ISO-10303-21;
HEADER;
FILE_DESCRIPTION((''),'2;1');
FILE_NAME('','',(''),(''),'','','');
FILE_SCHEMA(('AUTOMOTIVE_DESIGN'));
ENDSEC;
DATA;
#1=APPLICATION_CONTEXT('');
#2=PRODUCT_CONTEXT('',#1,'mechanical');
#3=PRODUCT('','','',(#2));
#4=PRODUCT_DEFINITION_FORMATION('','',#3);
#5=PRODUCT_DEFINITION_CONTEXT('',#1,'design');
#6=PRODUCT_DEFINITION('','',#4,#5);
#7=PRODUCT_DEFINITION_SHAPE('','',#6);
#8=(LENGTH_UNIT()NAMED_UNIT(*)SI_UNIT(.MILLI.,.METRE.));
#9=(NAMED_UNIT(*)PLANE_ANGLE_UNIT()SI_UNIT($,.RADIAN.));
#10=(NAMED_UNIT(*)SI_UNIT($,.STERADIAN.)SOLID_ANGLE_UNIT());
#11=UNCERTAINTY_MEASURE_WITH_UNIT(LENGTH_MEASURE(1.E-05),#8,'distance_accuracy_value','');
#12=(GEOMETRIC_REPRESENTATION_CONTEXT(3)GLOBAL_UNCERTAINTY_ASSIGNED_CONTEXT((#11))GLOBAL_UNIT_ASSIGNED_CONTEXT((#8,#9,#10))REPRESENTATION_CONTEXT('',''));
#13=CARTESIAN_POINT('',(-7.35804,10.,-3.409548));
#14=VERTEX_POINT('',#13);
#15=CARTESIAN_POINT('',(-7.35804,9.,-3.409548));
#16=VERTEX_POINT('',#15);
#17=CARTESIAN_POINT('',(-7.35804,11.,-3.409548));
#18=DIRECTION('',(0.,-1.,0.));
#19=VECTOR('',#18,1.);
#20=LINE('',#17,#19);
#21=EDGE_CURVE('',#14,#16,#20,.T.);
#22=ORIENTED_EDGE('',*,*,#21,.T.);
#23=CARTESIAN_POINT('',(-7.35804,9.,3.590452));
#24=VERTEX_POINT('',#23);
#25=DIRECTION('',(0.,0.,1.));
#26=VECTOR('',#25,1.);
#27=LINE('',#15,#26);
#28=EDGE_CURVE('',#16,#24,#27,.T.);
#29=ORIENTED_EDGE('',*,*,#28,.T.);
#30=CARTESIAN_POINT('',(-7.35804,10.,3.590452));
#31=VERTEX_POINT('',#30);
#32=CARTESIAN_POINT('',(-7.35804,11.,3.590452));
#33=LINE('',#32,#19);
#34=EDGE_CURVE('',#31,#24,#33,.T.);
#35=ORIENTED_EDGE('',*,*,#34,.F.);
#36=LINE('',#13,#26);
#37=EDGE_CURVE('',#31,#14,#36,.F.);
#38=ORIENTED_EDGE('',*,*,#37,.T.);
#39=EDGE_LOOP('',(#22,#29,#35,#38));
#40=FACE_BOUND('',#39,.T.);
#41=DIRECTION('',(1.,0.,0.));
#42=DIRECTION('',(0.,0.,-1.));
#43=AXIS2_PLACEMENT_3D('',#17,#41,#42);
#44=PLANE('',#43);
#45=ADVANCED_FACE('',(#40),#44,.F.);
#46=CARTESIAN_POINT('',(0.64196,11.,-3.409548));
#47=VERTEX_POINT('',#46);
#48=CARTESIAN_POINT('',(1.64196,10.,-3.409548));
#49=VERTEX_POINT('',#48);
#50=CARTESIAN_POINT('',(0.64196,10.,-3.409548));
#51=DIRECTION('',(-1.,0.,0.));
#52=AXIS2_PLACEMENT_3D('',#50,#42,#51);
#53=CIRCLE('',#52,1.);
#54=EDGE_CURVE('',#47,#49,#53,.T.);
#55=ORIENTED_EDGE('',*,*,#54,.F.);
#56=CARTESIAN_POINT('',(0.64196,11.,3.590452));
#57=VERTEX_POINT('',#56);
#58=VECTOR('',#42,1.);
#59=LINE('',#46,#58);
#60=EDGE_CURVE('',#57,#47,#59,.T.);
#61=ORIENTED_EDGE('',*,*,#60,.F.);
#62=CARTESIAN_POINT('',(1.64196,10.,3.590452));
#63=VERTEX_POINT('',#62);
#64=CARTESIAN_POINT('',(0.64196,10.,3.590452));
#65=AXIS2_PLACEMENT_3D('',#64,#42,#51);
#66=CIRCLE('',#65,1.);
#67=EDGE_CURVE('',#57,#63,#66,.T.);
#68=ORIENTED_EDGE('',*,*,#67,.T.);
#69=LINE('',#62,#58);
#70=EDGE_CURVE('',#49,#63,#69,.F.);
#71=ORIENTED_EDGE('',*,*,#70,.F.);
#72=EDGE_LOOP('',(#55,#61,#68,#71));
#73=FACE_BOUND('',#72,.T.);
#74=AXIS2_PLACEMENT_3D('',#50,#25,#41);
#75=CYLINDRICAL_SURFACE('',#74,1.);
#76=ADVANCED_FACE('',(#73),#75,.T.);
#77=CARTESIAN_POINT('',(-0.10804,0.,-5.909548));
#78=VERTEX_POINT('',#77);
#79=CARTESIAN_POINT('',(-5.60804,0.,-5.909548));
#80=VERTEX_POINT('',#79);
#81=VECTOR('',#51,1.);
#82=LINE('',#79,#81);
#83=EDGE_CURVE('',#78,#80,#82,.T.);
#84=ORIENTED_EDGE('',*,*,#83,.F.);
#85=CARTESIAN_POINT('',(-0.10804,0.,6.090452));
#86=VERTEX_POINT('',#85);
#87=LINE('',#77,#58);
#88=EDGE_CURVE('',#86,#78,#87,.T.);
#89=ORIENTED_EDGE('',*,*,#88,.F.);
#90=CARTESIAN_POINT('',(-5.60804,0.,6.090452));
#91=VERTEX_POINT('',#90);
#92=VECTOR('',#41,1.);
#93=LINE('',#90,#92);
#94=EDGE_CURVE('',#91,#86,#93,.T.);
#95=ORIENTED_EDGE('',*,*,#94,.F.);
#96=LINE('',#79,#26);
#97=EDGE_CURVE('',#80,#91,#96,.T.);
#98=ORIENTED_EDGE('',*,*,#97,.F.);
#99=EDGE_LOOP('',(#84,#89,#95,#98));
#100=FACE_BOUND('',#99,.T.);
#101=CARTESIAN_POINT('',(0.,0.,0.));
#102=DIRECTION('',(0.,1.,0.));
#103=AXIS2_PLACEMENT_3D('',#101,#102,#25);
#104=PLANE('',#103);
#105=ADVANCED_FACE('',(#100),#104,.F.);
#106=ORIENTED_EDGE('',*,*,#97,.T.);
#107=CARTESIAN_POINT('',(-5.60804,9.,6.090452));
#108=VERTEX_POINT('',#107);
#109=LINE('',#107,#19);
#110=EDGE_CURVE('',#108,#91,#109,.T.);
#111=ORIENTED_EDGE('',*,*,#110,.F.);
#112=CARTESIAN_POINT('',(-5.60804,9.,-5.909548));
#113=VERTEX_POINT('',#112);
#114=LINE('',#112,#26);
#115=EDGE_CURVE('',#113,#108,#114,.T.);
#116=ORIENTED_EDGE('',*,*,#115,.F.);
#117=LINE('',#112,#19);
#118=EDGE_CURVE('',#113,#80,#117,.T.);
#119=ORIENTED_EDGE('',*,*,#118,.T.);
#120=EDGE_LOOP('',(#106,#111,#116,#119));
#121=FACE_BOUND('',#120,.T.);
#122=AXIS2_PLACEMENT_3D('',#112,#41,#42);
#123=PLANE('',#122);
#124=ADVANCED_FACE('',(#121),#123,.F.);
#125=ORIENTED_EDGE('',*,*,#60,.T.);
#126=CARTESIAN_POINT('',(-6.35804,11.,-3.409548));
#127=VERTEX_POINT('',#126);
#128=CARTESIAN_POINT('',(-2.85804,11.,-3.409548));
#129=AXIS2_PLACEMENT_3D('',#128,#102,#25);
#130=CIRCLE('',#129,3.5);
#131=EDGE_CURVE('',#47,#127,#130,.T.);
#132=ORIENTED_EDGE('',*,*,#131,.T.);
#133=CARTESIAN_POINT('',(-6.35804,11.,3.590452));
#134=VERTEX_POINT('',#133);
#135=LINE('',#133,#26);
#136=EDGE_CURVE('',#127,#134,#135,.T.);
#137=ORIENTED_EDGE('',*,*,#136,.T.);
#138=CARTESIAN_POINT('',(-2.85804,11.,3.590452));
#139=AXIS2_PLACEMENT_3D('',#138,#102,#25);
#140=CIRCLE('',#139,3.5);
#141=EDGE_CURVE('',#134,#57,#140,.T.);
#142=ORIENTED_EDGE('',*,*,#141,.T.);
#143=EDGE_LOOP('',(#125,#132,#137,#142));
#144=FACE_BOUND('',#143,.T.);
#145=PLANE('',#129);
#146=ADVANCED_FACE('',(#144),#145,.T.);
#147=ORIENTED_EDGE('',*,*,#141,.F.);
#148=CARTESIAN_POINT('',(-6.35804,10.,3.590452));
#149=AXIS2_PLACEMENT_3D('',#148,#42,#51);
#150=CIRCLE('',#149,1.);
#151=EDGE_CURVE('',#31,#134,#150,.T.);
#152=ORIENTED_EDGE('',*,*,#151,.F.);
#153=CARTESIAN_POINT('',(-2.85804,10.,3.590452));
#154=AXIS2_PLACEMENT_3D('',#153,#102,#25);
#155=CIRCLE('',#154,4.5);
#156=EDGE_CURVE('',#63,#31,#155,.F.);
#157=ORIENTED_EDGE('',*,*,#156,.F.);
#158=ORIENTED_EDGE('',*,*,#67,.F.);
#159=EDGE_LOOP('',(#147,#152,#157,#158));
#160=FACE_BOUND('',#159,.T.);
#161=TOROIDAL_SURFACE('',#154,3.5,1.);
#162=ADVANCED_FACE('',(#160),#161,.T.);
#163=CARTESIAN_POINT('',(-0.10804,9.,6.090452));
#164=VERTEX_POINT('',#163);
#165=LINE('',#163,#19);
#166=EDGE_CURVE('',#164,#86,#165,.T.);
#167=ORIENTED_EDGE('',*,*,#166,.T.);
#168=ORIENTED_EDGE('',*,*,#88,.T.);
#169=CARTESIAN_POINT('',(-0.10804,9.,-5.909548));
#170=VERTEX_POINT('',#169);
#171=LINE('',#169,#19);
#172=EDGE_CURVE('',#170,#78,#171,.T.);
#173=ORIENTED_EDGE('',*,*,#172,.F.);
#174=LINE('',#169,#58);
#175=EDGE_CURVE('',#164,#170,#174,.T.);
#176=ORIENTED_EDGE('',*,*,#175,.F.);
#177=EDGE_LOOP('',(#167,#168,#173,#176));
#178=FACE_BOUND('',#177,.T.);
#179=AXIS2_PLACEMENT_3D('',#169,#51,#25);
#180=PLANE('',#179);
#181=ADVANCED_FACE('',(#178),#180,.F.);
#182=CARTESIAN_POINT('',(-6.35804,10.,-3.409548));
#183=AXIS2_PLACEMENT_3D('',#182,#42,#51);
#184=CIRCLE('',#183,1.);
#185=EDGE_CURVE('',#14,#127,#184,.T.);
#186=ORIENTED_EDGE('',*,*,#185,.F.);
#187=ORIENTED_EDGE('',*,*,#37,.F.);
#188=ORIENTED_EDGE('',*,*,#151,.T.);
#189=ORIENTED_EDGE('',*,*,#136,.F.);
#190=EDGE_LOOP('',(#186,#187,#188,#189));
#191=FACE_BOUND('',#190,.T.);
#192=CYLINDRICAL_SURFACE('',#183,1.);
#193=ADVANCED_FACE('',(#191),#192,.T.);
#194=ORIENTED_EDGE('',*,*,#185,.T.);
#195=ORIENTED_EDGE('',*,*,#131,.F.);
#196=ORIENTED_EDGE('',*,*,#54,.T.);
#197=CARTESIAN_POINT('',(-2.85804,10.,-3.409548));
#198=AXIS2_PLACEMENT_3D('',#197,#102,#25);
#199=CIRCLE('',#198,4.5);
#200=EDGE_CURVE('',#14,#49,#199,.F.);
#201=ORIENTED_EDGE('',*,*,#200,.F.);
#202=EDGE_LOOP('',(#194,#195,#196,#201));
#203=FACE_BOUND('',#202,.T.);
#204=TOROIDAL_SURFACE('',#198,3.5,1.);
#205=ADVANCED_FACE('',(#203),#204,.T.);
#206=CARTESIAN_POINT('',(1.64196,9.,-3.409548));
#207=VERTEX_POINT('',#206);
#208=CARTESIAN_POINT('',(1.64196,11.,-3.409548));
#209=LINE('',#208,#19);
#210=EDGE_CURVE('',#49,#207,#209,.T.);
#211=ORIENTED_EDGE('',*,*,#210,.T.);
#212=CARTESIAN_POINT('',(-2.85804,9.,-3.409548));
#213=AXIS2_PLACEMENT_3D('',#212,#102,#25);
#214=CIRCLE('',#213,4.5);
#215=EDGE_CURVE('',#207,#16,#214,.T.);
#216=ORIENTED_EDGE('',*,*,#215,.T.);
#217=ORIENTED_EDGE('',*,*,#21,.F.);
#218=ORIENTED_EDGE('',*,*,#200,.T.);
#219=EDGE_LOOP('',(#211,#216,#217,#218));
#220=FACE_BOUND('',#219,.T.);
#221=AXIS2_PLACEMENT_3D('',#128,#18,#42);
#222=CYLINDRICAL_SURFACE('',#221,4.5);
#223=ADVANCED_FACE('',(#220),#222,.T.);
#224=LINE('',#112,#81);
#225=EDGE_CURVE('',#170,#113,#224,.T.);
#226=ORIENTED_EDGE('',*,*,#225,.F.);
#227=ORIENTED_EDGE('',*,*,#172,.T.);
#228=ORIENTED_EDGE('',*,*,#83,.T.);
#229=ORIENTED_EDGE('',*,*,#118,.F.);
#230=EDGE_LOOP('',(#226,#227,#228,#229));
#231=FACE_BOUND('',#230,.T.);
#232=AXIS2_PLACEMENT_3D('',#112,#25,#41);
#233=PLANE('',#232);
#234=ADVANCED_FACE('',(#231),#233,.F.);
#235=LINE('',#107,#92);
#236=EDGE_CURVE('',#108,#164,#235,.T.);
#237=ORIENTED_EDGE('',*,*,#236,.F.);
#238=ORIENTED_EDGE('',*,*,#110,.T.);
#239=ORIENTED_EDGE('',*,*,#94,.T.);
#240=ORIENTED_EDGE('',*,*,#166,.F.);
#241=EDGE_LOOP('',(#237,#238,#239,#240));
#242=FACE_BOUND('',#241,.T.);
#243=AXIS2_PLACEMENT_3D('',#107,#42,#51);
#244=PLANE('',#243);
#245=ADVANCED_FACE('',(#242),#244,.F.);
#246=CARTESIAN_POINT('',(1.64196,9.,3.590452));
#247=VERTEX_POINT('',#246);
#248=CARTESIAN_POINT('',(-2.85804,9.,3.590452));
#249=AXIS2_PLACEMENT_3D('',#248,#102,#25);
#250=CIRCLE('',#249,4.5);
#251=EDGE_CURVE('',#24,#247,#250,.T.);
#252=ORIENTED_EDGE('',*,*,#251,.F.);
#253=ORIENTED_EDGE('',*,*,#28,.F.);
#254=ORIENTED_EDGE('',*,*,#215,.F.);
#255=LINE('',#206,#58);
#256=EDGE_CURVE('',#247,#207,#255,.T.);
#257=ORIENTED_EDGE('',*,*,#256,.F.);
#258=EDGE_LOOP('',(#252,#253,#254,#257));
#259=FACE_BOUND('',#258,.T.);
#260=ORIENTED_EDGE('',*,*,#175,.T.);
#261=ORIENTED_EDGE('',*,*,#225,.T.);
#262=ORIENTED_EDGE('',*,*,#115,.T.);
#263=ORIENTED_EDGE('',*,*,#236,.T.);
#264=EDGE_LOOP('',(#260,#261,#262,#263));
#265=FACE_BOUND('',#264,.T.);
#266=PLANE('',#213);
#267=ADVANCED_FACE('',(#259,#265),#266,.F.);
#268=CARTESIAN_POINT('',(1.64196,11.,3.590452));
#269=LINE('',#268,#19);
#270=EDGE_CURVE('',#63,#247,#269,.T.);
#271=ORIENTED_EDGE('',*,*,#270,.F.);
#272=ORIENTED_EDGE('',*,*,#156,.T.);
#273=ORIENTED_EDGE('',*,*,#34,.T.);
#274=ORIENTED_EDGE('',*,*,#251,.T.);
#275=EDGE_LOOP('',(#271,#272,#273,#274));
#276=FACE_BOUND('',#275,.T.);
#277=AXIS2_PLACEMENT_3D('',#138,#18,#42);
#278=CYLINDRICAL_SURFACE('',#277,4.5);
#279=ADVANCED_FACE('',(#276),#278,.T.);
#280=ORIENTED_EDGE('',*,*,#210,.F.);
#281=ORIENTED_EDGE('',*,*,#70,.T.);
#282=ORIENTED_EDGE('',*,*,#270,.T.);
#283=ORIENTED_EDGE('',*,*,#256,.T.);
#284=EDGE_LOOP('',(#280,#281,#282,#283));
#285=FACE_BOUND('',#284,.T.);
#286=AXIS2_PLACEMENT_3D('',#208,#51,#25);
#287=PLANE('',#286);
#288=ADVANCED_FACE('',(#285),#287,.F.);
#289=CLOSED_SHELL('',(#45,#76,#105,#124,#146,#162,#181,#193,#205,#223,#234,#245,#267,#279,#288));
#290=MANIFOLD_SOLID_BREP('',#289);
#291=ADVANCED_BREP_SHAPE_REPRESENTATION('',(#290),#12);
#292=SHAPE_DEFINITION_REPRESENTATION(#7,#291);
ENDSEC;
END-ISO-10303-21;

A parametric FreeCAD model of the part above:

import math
import FreeCAD as App
import Part
import Sketcher

V = App.Vector
Q = App.Units.Quantity


def edges_at(feature, points):
    """Names of the edges that pass closest to the given points."""
    edges = feature.Shape.Edges
    near = lambda p: min(range(len(edges)), key=lambda i: edges[i].distToShape(Part.Vertex(*p))[0])
    return sorted({f"Edge{near(p) + 1}" for p in points})

doc = App.newDocument("Part")
params = doc.addObject("Spreadsheet::Sheet", "Params")
for row, (alias, value) in enumerate([
    ("sketch1_height", "12 mm"),
    ("sketch1_width", "5.5 mm"),
    ("pad1_length", "9 mm"),
    ("sketch2_radius", "4.5 mm"),
    ("sketch2_height", "7 mm"),
    ("pad2_length", "2 mm"),
    ("fillet_radius", "1 mm"),
], start=1):
    params.set(f"A{row}", alias)
    params.set(f"B{row}", "=" + value)
    params.setAlias(f"B{row}", alias)

body = doc.addObject("PartDesign::Body", "Body")

# Sketch on XZ plane
sketch1 = body.newObject("Sketcher::SketchObject", "Sketch")
sketch1.AttachmentSupport = (doc.getObject("XZ_Plane"), [""])
sketch1.MapMode = "FlatFace"
sketch1.addGeometry([
    Part.LineSegment(V(-5.60804, -5.909548, 0), V(-5.60804, 6.090452, 0)),
    Part.LineSegment(V(-5.60804, 6.090452, 0), V(-0.10804, 6.090452, 0)),
    Part.LineSegment(V(-0.10804, 6.090452, 0), V(-0.10804, -5.909548, 0)),
    Part.LineSegment(V(-0.10804, -5.909548, 0), V(-5.60804, -5.909548, 0)),
], False)
sketch1.addConstraint([
    Sketcher.Constraint("Coincident", 0, 2, 1, 1),
    Sketcher.Constraint("Coincident", 1, 2, 2, 1),
    Sketcher.Constraint("Coincident", 2, 2, 3, 1),
    Sketcher.Constraint("Coincident", 3, 2, 0, 1),
    Sketcher.Constraint("Vertical", 0),
    Sketcher.Constraint("Horizontal", 1),
    Sketcher.Constraint("Vertical", 2),
    Sketcher.Constraint("Horizontal", 3),
    Sketcher.Constraint("DistanceY", 0, 1, 0, 2, Q("12 mm")),
    Sketcher.Constraint("DistanceX", 1, 1, 1, 2, Q("5.5 mm")),
    Sketcher.Constraint("DistanceX", 0, 2, -1, 1, Q("5.60804 mm")),
    Sketcher.Constraint("DistanceY", -1, 1, 0, 2, Q("6.090452 mm")),
])
sketch1.setExpression("Constraints[8]", "Params.sketch1_height")
sketch1.setExpression("Constraints[9]", "Params.sketch1_width")
pad1 = body.newObject("PartDesign::Pad", "Pad")
pad1.Profile = sketch1
pad1.setExpression("Length", "Params.pad1_length")
pad1.Reversed = True

# Sketch on XZ plane
sketch2 = body.newObject("Sketcher::SketchObject", "Sketch001")
sketch2.AttachmentSupport = (doc.getObject("XZ_Plane"), [""])
sketch2.MapMode = "FlatFace"
sketch2.AttachmentOffset = App.Placement(V(0, 0, -9), App.Rotation())
sketch2.addGeometry([
    Part.LineSegment(V(1.64196, 3.590452, 0), V(1.64196, -3.409548, 0)),
    Part.ArcOfCircle(Part.Circle(V(-2.85804, -3.409548, 0), V(0, 0, 1), 4.5), math.radians(180), math.radians(360)),
    Part.LineSegment(V(-7.35804, -3.409548, 0), V(-7.35804, 3.590452, 0)),
    Part.ArcOfCircle(Part.Circle(V(-2.85804, 3.590452, 0), V(0, 0, 1), 4.5), math.radians(0), math.radians(180)),
], False)
sketch2.addConstraint([
    Sketcher.Constraint("Tangent", 0, 2, 1, 2),
    Sketcher.Constraint("Tangent", 1, 1, 2, 1),
    Sketcher.Constraint("Tangent", 2, 2, 3, 2),
    Sketcher.Constraint("Tangent", 3, 1, 0, 1),
    Sketcher.Constraint("Vertical", 0),
    Sketcher.Constraint("Vertical", 2),
    Sketcher.Constraint("Radius", 1, Q("4.5 mm")),
    Sketcher.Constraint("DistanceY", 0, 2, 0, 1, Q("7 mm")),
    Sketcher.Constraint("DistanceX", 1, 3, -1, 1, Q("2.85804 mm")),
    Sketcher.Constraint("DistanceY", 1, 3, -1, 1, Q("3.409548 mm")),
])
sketch2.setExpression("Constraints[6]", "Params.sketch2_radius")
sketch2.setExpression("Constraints[7]", "Params.sketch2_height")
pad2 = body.newObject("PartDesign::Pad", "Pad001")
pad2.Profile = sketch2
pad2.setExpression("Length", "Params.pad2_length")
pad2.Reversed = True
doc.recompute()

fillet = body.newObject("PartDesign::Fillet", "Fillet")
fillet.Base = (pad2, edges_at(pad2, [
    (-2.858, 11, -7.91),
    (-7.358, 11, 0.09),
    (-2.858, 11, 8.09),
    (1.642, 11, 0.09),
]))
fillet.setExpression("Radius", "Params.fillet_radius")

doc.recompute()
